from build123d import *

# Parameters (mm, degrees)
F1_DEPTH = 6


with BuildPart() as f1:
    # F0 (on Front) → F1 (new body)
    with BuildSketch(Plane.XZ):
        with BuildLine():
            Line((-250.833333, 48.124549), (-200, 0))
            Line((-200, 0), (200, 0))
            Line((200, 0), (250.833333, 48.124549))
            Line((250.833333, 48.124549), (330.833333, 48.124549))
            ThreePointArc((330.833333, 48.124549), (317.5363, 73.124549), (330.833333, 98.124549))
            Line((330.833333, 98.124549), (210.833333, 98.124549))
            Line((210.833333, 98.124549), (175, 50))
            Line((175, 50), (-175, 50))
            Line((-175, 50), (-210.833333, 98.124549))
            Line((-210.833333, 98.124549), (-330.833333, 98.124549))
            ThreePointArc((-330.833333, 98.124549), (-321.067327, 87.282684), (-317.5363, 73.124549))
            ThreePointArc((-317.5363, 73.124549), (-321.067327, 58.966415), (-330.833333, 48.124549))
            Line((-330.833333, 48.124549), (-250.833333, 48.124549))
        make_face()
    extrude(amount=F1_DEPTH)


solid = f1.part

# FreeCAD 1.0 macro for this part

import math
import FreeCAD as App
import Part
import Sketcher

V = App.Vector

doc = App.newDocument("Part")
body = doc.addObject("PartDesign::Body", "Body")

# Sketch on XZ plane
sketch1 = body.newObject("Sketcher::SketchObject", "Sketch")
sketch1.AttachmentSupport = (doc.getObject("XZ_Plane"), [""])
sketch1.MapMode = "FlatFace"
sketch1.addGeometry(Part.LineSegment(V(-251, 48, 0), V(-200, 0, 0)), False)
sketch1.addGeometry(Part.LineSegment(V(-200, 0, 0), V(200, 0, 0)), False)
sketch1.addGeometry(Part.LineSegment(V(200, 0, 0), V(251, 48, 0)), False)
sketch1.addGeometry(Part.LineSegment(V(251, 48, 0), V(331, 48, 0)), False)
sketch1.addGeometry(Part.ArcOfCircle(Part.Circle(V(348, 73, 0), V(0, 0, 1), 30), math.radians(124), math.radians(236)), False)
sketch1.addGeometry(Part.LineSegment(V(331, 98, 0), V(211, 98, 0)), False)
sketch1.addGeometry(Part.LineSegment(V(211, 98, 0), V(175, 50, 0)), False)
sketch1.addGeometry(Part.LineSegment(V(175, 50, 0), V(-175, 50, 0)), False)
sketch1.addGeometry(Part.LineSegment(V(-175, 50, 0), V(-211, 98, 0)), False)
sketch1.addGeometry(Part.LineSegment(V(-211, 98, 0), V(-331, 98, 0)), False)
sketch1.addGeometry(Part.ArcOfCircle(Part.Circle(V(-348, 73, 0), V(0, 0, 1), 30), math.radians(0), math.radians(56)), False)
sketch1.addGeometry(Part.ArcOfCircle(Part.Circle(V(-348, 73, 0), V(0, 0, 1), 30), math.radians(-56), math.radians(0)), False)
sketch1.addGeometry(Part.LineSegment(V(-331, 48, 0), V(-251, 48, 0)), False)
sketch1.addConstraint(Sketcher.Constraint("Coincident", 0, 2, 1, 1))
sketch1.addConstraint(Sketcher.Constraint("Coincident", 1, 2, 2, 1))
sketch1.addConstraint(Sketcher.Constraint("Coincident", 2, 2, 3, 1))
sketch1.addConstraint(Sketcher.Constraint("Coincident", 3, 2, 4, 2))
sketch1.addConstraint(Sketcher.Constraint("Coincident", 4, 1, 5, 1))
sketch1.addConstraint(Sketcher.Constraint("Coincident", 5, 2, 6, 1))
sketch1.addConstraint(Sketcher.Constraint("Coincident", 6, 2, 7, 1))
sketch1.addConstraint(Sketcher.Constraint("Coincident", 7, 2, 8, 1))
sketch1.addConstraint(Sketcher.Constraint("Coincident", 8, 2, 9, 1))
sketch1.addConstraint(Sketcher.Constraint("Coincident", 9, 2, 10, 2))
sketch1.addConstraint(Sketcher.Constraint("Tangent", 10, 1, 11, 2))
sketch1.addConstraint(Sketcher.Constraint("Coincident", 11, 1, 12, 1))
sketch1.addConstraint(Sketcher.Constraint("Coincident", 12, 2, 0, 1))
sketch1.addConstraint(Sketcher.Constraint("Horizontal", 1))
sketch1.addConstraint(Sketcher.Constraint("Horizontal", 3))
sketch1.addConstraint(Sketcher.Constraint("Horizontal", 5))
sketch1.addConstraint(Sketcher.Constraint("Horizontal", 7))
sketch1.addConstraint(Sketcher.Constraint("Horizontal", 9))
sketch1.addConstraint(Sketcher.Constraint("Horizontal", 12))
sketch1.addConstraint(Sketcher.Constraint("Equal", 4, 10))
sketch1.addConstraint(Sketcher.Constraint("Symmetric", 0, 2, 1, 2, -1, 1))
sketch1.addConstraint(Sketcher.Constraint("Symmetric", 4, 3, 10, 3, -2))
sketch1.addConstraint(Sketcher.Constraint("Symmetric", 5, 2, 8, 2, -2))
sketch1.addConstraint(Sketcher.Constraint("Symmetric", 3, 2, 11, 1, -2))
sketch1.addConstraint(Sketcher.Constraint("Horizontal", 11, 3, 10, 1))
sketch1.addConstraint(Sketcher.Constraint("Vertical", 3, 2, 4, 1))
sketch1.addConstraint(Sketcher.Constraint("Equal", 3, 12))
sketch1.addConstraint(Sketcher.Constraint("Equal", 6, 8))
sketch1.addConstraint(Sketcher.Constraint("DistanceX", 1, 1, 1, 2, 400.0))
sketch1.addConstraint(Sketcher.Constraint("DistanceX", 3, 1, 3, 2, 80.0))
sketch1.addConstraint(Sketcher.Constraint("DistanceX", 5, 2, 5, 1, 120.0))
sketch1.addConstraint(Sketcher.Constraint("DistanceX", 7, 2, 7, 1, 350.0))
sketch1.addConstraint(Sketcher.Constraint("Radius", 4, 30.15))
sketch1.addConstraint(Sketcher.Constraint("Distance", 0, 70.0))
sketch1.addConstraint(Sketcher.Constraint("Distance", 6, 60.0))
sketch1.addConstraint(Sketcher.Constraint("DistanceY", -1, 1, 6, 2, 50.0))
sketch1.addConstraint(Sketcher.Constraint("DistanceY", 2, 2, 4, 3, 25.0))
pad1 = body.newObject("PartDesign::Pad", "Pad")
pad1.Profile = sketch1
pad1.Length = 6

doc.recompute()
